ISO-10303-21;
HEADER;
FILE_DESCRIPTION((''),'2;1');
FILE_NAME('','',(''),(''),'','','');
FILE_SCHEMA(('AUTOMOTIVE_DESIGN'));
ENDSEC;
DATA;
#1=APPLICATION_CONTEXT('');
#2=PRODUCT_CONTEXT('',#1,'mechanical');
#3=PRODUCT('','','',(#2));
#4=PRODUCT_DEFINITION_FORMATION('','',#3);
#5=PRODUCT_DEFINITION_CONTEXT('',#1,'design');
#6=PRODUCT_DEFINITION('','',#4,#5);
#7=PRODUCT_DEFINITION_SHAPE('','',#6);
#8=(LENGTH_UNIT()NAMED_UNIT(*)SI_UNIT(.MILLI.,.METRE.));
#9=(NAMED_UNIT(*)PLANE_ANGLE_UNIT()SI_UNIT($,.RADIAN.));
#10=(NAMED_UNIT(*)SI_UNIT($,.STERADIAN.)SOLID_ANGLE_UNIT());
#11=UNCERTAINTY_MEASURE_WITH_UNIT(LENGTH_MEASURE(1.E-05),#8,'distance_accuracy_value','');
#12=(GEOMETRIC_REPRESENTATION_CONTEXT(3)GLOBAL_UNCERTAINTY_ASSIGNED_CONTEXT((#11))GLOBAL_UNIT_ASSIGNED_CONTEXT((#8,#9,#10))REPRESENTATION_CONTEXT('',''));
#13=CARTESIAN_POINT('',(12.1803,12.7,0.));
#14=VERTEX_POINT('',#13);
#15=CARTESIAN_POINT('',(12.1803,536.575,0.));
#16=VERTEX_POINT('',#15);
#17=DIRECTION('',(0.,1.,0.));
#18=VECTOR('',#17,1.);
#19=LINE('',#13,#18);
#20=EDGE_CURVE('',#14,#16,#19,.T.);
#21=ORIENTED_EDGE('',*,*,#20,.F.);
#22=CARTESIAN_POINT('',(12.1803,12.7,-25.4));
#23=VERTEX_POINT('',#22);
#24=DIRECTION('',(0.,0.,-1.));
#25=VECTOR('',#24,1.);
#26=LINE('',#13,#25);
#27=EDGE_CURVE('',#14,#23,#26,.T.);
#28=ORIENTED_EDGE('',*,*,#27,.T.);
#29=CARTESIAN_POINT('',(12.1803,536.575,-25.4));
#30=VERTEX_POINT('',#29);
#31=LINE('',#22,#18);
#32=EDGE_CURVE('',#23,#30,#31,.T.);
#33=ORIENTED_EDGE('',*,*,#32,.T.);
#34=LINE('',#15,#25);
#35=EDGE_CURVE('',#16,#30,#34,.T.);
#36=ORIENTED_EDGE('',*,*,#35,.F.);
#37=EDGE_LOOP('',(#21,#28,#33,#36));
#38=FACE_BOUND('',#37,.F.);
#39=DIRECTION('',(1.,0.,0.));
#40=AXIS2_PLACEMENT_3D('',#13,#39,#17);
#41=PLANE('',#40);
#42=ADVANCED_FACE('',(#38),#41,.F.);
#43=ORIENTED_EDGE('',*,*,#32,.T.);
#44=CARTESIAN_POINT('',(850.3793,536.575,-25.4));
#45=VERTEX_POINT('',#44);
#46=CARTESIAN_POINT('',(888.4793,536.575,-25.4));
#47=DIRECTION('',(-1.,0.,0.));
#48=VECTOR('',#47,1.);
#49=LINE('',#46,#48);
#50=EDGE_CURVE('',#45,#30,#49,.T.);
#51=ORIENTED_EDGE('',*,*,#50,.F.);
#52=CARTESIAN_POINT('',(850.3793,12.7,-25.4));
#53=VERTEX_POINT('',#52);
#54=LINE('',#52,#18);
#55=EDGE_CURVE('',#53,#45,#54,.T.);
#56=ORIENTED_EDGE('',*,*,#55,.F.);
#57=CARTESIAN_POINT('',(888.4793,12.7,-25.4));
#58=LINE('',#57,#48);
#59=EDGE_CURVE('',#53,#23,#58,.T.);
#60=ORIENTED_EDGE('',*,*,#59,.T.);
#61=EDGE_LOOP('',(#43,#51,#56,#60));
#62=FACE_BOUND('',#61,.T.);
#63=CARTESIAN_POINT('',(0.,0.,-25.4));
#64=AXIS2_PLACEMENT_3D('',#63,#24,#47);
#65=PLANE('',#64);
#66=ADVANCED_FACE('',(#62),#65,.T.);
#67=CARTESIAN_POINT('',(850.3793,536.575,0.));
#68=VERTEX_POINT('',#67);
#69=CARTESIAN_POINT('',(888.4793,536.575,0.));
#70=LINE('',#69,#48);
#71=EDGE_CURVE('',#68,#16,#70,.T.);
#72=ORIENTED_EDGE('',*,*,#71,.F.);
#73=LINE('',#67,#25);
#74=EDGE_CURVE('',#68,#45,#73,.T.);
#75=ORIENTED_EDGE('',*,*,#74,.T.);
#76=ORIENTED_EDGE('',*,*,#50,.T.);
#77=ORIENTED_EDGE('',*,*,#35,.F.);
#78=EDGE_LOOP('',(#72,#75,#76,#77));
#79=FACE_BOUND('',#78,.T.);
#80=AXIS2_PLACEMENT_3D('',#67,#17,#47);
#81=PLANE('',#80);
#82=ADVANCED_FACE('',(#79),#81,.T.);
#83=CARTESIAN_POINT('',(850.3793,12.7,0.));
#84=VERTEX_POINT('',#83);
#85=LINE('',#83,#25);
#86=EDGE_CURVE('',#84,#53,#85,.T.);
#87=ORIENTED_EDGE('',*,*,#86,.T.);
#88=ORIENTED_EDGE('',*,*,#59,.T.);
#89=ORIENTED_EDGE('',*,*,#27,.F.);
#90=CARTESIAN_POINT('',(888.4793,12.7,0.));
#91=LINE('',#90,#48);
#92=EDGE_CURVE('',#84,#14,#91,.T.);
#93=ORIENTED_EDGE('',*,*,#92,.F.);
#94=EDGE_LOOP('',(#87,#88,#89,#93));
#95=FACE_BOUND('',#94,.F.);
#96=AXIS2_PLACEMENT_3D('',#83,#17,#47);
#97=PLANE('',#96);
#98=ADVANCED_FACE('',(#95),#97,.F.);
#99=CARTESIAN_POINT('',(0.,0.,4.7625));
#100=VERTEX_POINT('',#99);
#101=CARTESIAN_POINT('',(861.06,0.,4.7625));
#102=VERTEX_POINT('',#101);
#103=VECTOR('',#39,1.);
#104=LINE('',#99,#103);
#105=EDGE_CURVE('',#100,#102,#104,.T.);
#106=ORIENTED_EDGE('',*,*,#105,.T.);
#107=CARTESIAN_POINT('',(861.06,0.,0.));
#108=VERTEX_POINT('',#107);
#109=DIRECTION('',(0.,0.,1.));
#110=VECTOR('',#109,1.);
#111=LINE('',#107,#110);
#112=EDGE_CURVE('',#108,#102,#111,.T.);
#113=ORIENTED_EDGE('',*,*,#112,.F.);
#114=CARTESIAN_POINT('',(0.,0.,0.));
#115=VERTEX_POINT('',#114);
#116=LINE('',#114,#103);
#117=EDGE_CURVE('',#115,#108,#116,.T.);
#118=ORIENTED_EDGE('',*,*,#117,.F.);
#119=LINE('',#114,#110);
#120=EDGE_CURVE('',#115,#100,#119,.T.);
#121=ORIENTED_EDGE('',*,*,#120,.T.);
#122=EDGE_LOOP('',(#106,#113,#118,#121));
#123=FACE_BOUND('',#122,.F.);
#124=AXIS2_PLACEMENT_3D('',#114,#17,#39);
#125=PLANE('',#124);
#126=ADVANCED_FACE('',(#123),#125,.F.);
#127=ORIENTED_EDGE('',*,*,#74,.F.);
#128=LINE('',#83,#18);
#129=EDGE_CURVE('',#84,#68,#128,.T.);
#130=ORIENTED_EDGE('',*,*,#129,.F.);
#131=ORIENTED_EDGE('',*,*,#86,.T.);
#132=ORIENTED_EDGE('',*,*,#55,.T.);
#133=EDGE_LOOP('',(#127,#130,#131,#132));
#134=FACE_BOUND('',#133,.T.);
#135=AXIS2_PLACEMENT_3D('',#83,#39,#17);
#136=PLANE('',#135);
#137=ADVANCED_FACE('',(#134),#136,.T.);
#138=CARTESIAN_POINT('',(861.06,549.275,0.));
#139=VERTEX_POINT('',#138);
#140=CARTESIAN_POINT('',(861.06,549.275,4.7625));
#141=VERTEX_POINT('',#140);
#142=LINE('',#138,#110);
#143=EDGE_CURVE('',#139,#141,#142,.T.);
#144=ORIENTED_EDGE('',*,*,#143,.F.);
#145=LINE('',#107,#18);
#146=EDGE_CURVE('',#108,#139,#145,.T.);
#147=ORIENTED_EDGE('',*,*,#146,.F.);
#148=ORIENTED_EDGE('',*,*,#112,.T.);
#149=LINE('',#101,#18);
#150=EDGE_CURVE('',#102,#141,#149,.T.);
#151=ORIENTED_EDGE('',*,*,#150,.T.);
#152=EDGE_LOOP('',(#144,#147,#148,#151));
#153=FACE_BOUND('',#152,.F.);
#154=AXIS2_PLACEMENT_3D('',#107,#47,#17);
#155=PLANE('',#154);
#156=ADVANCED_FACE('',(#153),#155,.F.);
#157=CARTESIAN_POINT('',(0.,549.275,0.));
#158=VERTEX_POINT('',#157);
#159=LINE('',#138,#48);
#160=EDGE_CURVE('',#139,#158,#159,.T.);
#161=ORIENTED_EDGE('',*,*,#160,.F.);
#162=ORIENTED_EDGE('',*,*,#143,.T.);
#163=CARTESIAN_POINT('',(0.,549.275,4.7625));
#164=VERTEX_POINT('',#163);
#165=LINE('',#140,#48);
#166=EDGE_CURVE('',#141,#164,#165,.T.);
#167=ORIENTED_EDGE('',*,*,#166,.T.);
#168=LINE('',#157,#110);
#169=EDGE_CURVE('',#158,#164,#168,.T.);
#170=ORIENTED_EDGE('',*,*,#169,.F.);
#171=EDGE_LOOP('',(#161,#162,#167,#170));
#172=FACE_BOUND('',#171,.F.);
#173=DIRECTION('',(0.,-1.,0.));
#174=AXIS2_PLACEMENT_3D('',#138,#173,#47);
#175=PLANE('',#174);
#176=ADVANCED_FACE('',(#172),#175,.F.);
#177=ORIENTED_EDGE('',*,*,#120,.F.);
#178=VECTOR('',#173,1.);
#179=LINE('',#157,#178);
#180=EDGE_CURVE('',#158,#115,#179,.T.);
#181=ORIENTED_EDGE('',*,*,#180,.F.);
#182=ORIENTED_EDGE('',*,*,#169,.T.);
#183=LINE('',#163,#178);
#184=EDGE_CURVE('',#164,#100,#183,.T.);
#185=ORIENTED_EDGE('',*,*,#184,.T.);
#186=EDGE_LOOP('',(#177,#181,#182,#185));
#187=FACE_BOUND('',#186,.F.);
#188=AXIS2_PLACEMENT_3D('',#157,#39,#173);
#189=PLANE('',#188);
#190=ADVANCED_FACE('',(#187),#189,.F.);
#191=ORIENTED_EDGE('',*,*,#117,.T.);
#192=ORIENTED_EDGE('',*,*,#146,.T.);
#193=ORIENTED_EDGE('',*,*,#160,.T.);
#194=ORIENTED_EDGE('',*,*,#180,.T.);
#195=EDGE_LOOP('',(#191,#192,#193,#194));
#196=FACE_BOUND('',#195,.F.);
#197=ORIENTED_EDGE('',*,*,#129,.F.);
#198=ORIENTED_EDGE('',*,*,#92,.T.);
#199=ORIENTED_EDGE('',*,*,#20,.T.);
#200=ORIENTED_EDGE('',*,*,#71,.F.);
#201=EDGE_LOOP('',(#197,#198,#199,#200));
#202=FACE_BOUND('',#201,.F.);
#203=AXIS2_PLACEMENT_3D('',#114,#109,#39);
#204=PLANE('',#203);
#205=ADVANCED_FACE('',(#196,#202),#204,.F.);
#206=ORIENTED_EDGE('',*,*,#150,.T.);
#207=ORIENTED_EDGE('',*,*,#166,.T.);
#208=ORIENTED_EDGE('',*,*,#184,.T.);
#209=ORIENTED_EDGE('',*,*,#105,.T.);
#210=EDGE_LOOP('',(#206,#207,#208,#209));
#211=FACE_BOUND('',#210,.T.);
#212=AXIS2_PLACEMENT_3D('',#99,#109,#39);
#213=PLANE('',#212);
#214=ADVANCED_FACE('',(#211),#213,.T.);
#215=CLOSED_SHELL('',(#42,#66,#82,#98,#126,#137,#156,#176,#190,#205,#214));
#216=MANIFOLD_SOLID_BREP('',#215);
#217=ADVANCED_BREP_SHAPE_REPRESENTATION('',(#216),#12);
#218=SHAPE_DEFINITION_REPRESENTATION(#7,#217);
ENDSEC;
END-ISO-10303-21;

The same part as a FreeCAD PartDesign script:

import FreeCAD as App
import Part
import Sketcher

V = App.Vector
Q = App.Units.Quantity


def add_polygon(sketch, points):
    """Adds a closed chain of lines whose ends are joined by coincident constraints."""
    first, n = sketch.GeometryCount, len(points)
    for a, b in zip(points, points[1:] + points[:1]):
        sketch.addGeometry(Part.LineSegment(App.Vector(*a, 0), App.Vector(*b, 0)), False)
    for i in range(n):
        sketch.addConstraint(Sketcher.Constraint("Coincident", first + i, 2, first + (i + 1) % n, 1))

doc = App.newDocument("Part")
params = doc.addObject("Spreadsheet::Sheet", "Params")
for row, (alias, value) in enumerate([
    ("sketch1_width", "33.9 in"),
    ("sketch1_height", "21.625 in"),
    ("pad1_length", "0.1875 in"),
    ("sketch2_height", "20.625 in"),
    ("pad2_length", "1 in"),
], start=1):
    params.set(f"A{row}", alias)
    params.set(f"B{row}", "=" + value)
    params.setAlias(f"B{row}", alias)

body = doc.addObject("PartDesign::Body", "Body")

sketch1 = body.newObject("Sketcher::SketchObject", "Sketch")
sketch1.AttachmentSupport = (doc.getObject("XY_Plane"), [""])
sketch1.MapMode = "FlatFace"
add_polygon(sketch1, [(0, 549.275), (0, 0), (861.06, 0), (861.06, 549.275)])
sketch1.addConstraint(Sketcher.Constraint("Vertical", 0))
sketch1.addConstraint(Sketcher.Constraint("Horizontal", 1))
sketch1.addConstraint(Sketcher.Constraint("Vertical", 2))
sketch1.addConstraint(Sketcher.Constraint("Horizontal", 3))
sketch1.addConstraint(Sketcher.Constraint("Coincident", 0, 2, -1, 1))
sketch1.addConstraint(Sketcher.Constraint("DistanceX", 1, 1, 1, 2, Q("33.9 in")))
sketch1.addConstraint(Sketcher.Constraint("DistanceY", 0, 2, 0, 1, Q("21.625 in")))
sketch1.setExpression("Constraints[9]", "Params.sketch1_width")
sketch1.setExpression("Constraints[10]", "Params.sketch1_height")
pad1 = body.newObject("PartDesign::Pad", "Pad")
pad1.Profile = sketch1
pad1.setExpression("Length", "Params.pad1_length")

sketch2 = body.newObject("Sketcher::SketchObject", "Sketch001")
sketch2.AttachmentSupport = (doc.getObject("XY_Plane"), [""])
sketch2.MapMode = "FlatFace"
add_polygon(sketch2, [(850.3793, 536.575), (850.3793, 12.7), (12.1803, 12.7), (12.1803, 536.575)])
sketch2.addConstraint(Sketcher.Constraint("Vertical", 0))
sketch2.addConstraint(Sketcher.Constraint("Horizontal", 1))
sketch2.addConstraint(Sketcher.Constraint("Vertical", 2))
sketch2.addConstraint(Sketcher.Constraint("Horizontal", 3))
sketch2.addConstraint(Sketcher.Constraint("DistanceY", -1, 1, 0, 2, Q("0.5 in")))
sketch2.addConstraint(Sketcher.Constraint("DistanceY", 0, 2, 0, 1, Q("20.625 in")))
sketch2.addConstraint(Sketcher.Constraint("DistanceX", 1, 2, 1, 1, 838.199))
sketch2.addConstraint(Sketcher.Constraint("DistanceX", -1, 1, 0, 2, Q("33.4795 in")))
sketch2.setExpression("Constraints[9]", "Params.sketch2_height")
pad2 = body.newObject("PartDesign::Pad", "Pad001")
pad2.Profile = sketch2
pad2.setExpression("Length", "Params.pad2_length")
pad2.Reversed = True

doc.recompute()
